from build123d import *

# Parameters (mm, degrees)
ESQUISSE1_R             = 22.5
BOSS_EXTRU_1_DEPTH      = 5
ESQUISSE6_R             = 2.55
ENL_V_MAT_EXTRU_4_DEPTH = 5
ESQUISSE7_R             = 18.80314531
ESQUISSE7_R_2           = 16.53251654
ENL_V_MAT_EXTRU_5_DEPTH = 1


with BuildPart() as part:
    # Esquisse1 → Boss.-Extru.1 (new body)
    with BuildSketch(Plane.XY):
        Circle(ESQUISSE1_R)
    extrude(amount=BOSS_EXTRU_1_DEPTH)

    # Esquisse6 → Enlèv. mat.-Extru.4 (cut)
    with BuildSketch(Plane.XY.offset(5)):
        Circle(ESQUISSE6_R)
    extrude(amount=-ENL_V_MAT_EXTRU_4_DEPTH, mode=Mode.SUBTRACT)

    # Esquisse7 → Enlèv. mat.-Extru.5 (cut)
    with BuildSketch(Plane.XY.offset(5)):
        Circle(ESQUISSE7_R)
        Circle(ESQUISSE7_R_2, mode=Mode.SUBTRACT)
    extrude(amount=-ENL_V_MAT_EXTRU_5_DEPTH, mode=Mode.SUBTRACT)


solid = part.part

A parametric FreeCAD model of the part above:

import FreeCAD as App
import Part
import Sketcher

doc = App.newDocument("Part")
body = doc.addObject("PartDesign::Body", "Body")

# Sketch on XY plane
sketch1 = doc.addObject("Sketcher::SketchObject", "Sketch")
body.addObject(sketch1)
sketch1.AttachmentSupport = (doc.XY_Plane, [""])
sketch1.MapMode = "FlatFace"
sketch1.addGeometry(Part.Circle(App.Vector(0, 0, 0), App.Vector(0, 0, 1), 22), False)
sketch1.addConstraint(Sketcher.Constraint("Coincident", 0, 3, -1, 1))
sketch1.addConstraint(Sketcher.Constraint("Diameter", 0, 45.0))
pad1 = doc.addObject("PartDesign::Pad", "Pad")
body.addObject(pad1)
pad1.Profile = sketch1
pad1.Length = 5

# Sketch on XY plane
sketch2 = doc.addObject("Sketcher::SketchObject", "Sketch001")
body.addObject(sketch2)
sketch2.AttachmentSupport = (doc.XY_Plane, [""])
sketch2.MapMode = "FlatFace"
sketch2.AttachmentOffset = App.Placement(App.Vector(0, 0, 5), App.Rotation())
sketch2.addGeometry(Part.Circle(App.Vector(0, 0, 0), App.Vector(0, 0, 1), 2.5), False)
sketch2.addConstraint(Sketcher.Constraint("Coincident", 0, 3, -1, 1))
sketch2.addConstraint(Sketcher.Constraint("Diameter", 0, 5.1))
pocket1 = doc.addObject("PartDesign::Pocket", "Pocket")
body.addObject(pocket1)
pocket1.Profile = sketch2
pocket1.Length = 5

# Sketch on XY plane
sketch3 = doc.addObject("Sketcher::SketchObject", "Sketch002")
body.addObject(sketch3)
sketch3.AttachmentSupport = (doc.XY_Plane, [""])
sketch3.MapMode = "FlatFace"
sketch3.AttachmentOffset = App.Placement(App.Vector(0, 0, 5), App.Rotation())
sketch3.addGeometry(Part.Circle(App.Vector(0, 0, 0), App.Vector(0, 0, 1), 19), False)
sketch3.addGeometry(Part.Circle(App.Vector(0, 0, 0), App.Vector(0, 0, 1), 17), False)
sketch3.addConstraint(Sketcher.Constraint("Coincident", 0, 3, -1, 1))
sketch3.addConstraint(Sketcher.Constraint("Coincident", 1, 3, -1, 1))
sketch3.addConstraint(Sketcher.Constraint("Diameter", 0, 37.606291))
sketch3.addConstraint(Sketcher.Constraint("Diameter", 1, 33.065033))
pocket2 = doc.addObject("PartDesign::Pocket", "Pocket001")
body.addObject(pocket2)
pocket2.Profile = sketch3
pocket2.Length = 1

doc.recompute()
